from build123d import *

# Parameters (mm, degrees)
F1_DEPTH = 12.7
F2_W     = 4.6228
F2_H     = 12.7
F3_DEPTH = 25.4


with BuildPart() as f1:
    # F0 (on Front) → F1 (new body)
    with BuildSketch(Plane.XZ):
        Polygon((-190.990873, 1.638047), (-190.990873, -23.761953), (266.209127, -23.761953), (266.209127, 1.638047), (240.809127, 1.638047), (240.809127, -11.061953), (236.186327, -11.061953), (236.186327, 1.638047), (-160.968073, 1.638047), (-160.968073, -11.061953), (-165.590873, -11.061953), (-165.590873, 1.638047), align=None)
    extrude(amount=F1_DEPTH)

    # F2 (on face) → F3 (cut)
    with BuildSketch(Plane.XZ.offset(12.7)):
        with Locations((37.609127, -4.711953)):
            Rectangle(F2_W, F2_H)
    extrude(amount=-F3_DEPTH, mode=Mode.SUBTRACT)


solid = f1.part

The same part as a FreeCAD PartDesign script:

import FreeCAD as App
import Part
import Sketcher
Q = App.Units.Quantity

doc = App.newDocument("Part")
body = doc.addObject("PartDesign::Body", "Body")

sketch1 = body.newObject("Sketcher::SketchObject", "Sketch")
sketch1.AttachmentSupport = (doc.getObject("XZ_Plane"), [""])
sketch1.MapMode = "FlatFace"
sketch1.addGeometry(Part.LineSegment(App.Vector(-191, 1.6, 0), App.Vector(-191, -23.8, 0)), False)
sketch1.addGeometry(Part.LineSegment(App.Vector(-191, -23.8, 0), App.Vector(266.2, -23.8, 0)), False)
sketch1.addGeometry(Part.LineSegment(App.Vector(266.2, -23.8, 0), App.Vector(266.2, 1.6, 0)), False)
sketch1.addGeometry(Part.LineSegment(App.Vector(266.2, 1.6, 0), App.Vector(240.8, 1.6, 0)), False)
sketch1.addGeometry(Part.LineSegment(App.Vector(240.8, 1.6, 0), App.Vector(240.8, -11.1, 0)), False)
sketch1.addGeometry(Part.LineSegment(App.Vector(240.8, -11.1, 0), App.Vector(236.2, -11.1, 0)), False)
sketch1.addGeometry(Part.LineSegment(App.Vector(236.2, -11.1, 0), App.Vector(236.2, 1.6, 0)), False)
sketch1.addGeometry(Part.LineSegment(App.Vector(236.2, 1.6, 0), App.Vector(-161, 1.6, 0)), False)
sketch1.addGeometry(Part.LineSegment(App.Vector(-161, 1.6, 0), App.Vector(-161, -11.1, 0)), False)
sketch1.addGeometry(Part.LineSegment(App.Vector(-161, -11.1, 0), App.Vector(-165.6, -11.1, 0)), False)
sketch1.addGeometry(Part.LineSegment(App.Vector(-165.6, -11.1, 0), App.Vector(-165.6, 1.6, 0)), False)
sketch1.addGeometry(Part.LineSegment(App.Vector(-165.6, 1.6, 0), App.Vector(-191, 1.6, 0)), False)
sketch1.addConstraint(Sketcher.Constraint("Coincident", 0, 2, 1, 1))
sketch1.addConstraint(Sketcher.Constraint("Coincident", 1, 2, 2, 1))
sketch1.addConstraint(Sketcher.Constraint("Coincident", 2, 2, 3, 1))
sketch1.addConstraint(Sketcher.Constraint("Coincident", 3, 2, 4, 1))
sketch1.addConstraint(Sketcher.Constraint("Coincident", 4, 2, 5, 1))
sketch1.addConstraint(Sketcher.Constraint("Coincident", 5, 2, 6, 1))
sketch1.addConstraint(Sketcher.Constraint("Coincident", 6, 2, 7, 1))
sketch1.addConstraint(Sketcher.Constraint("Coincident", 7, 2, 8, 1))
sketch1.addConstraint(Sketcher.Constraint("Coincident", 8, 2, 9, 1))
sketch1.addConstraint(Sketcher.Constraint("Coincident", 9, 2, 10, 1))
sketch1.addConstraint(Sketcher.Constraint("Coincident", 10, 2, 11, 1))
sketch1.addConstraint(Sketcher.Constraint("Coincident", 11, 2, 0, 1))
sketch1.addConstraint(Sketcher.Constraint("Vertical", 0))
sketch1.addConstraint(Sketcher.Constraint("Horizontal", 1))
sketch1.addConstraint(Sketcher.Constraint("Vertical", 2))
sketch1.addConstraint(Sketcher.Constraint("Horizontal", 3))
sketch1.addConstraint(Sketcher.Constraint("Vertical", 4))
sketch1.addConstraint(Sketcher.Constraint("Horizontal", 5))
sketch1.addConstraint(Sketcher.Constraint("Vertical", 6))
sketch1.addConstraint(Sketcher.Constraint("Horizontal", 7))
sketch1.addConstraint(Sketcher.Constraint("Vertical", 8))
sketch1.addConstraint(Sketcher.Constraint("Horizontal", 9))
sketch1.addConstraint(Sketcher.Constraint("Vertical", 10))
sketch1.addConstraint(Sketcher.Constraint("Horizontal", 11))
sketch1.addConstraint(Sketcher.Constraint("Horizontal", 3, 2, 6, 2))
sketch1.addConstraint(Sketcher.Constraint("Horizontal", 5, 2, 8, 2))
sketch1.addConstraint(Sketcher.Constraint("Horizontal", 7, 2, 10, 2))
sketch1.addConstraint(Sketcher.Constraint("Equal", 5, 9))
sketch1.addConstraint(Sketcher.Constraint("Equal", 3, 11))
sketch1.addConstraint(Sketcher.Constraint("Equal", 11, 0))
sketch1.addConstraint(Sketcher.Constraint("DistanceX", 1, 1, 1, 2, Q("18 in")))
sketch1.addConstraint(Sketcher.Constraint("DistanceX", 3, 2, 3, 1, Q("1 in")))
sketch1.addConstraint(Sketcher.Constraint("DistanceY", 4, 2, 4, 1, Q("0.5 in")))
sketch1.addConstraint(Sketcher.Constraint("DistanceX", 5, 2, 5, 1, Q("0.182 in")))
sketch1.addConstraint(Sketcher.Constraint("DistanceX", 0, 2, -1, 1, Q("190.990873 mm")))
sketch1.addConstraint(Sketcher.Constraint("DistanceY", 0, 2, -1, 1, Q("23.761953 mm")))
pad1 = body.newObject("PartDesign::Pad", "Pad")
pad1.Profile = sketch1
pad1.Length = Q("0.5 in")

sketch2 = body.newObject("Sketcher::SketchObject", "Sketch001")
sketch2.AttachmentSupport = (doc.getObject("XZ_Plane"), [""])
sketch2.MapMode = "FlatFace"
sketch2.AttachmentOffset = App.Placement(App.Vector(0, 0, 0.5 * 25.4), App.Rotation())
sketch2.addGeometry(Part.LineSegment(App.Vector(35.3, 1.6, 0), App.Vector(35.3, -11.1, 0)), False)
sketch2.addGeometry(Part.LineSegment(App.Vector(35.3, -11.1, 0), App.Vector(39.9, -11.1, 0)), False)
sketch2.addGeometry(Part.LineSegment(App.Vector(39.9, -11.1, 0), App.Vector(39.9, 1.6, 0)), False)
sketch2.addGeometry(Part.LineSegment(App.Vector(39.9, 1.6, 0), App.Vector(35.3, 1.6, 0)), False)
sketch2.addConstraint(Sketcher.Constraint("Coincident", 0, 2, 1, 1))
sketch2.addConstraint(Sketcher.Constraint("Coincident", 1, 2, 2, 1))
sketch2.addConstraint(Sketcher.Constraint("Coincident", 2, 2, 3, 1))
sketch2.addConstraint(Sketcher.Constraint("Coincident", 3, 2, 0, 1))
sketch2.addConstraint(Sketcher.Constraint("Vertical", 0))
sketch2.addConstraint(Sketcher.Constraint("Horizontal", 1))
sketch2.addConstraint(Sketcher.Constraint("Vertical", 2))
sketch2.addConstraint(Sketcher.Constraint("Horizontal", 3))
sketch2.addConstraint(Sketcher.Constraint("DistanceY", 0, 2, 0, 1, Q("0.5 in")))
sketch2.addConstraint(Sketcher.Constraint("DistanceX", 1, 1, 1, 2, Q("0.182 in")))
sketch2.addConstraint(Sketcher.Constraint("DistanceX", -1, 1, 0, 2, Q("35.297727 mm")))
sketch2.addConstraint(Sketcher.Constraint("DistanceY", 0, 2, -1, 1, Q("11.061953 mm")))
pocket1 = body.newObject("PartDesign::Pocket", "Pocket")
pocket1.Profile = sketch2
pocket1.Length = Q("1 in")

doc.recompute()
